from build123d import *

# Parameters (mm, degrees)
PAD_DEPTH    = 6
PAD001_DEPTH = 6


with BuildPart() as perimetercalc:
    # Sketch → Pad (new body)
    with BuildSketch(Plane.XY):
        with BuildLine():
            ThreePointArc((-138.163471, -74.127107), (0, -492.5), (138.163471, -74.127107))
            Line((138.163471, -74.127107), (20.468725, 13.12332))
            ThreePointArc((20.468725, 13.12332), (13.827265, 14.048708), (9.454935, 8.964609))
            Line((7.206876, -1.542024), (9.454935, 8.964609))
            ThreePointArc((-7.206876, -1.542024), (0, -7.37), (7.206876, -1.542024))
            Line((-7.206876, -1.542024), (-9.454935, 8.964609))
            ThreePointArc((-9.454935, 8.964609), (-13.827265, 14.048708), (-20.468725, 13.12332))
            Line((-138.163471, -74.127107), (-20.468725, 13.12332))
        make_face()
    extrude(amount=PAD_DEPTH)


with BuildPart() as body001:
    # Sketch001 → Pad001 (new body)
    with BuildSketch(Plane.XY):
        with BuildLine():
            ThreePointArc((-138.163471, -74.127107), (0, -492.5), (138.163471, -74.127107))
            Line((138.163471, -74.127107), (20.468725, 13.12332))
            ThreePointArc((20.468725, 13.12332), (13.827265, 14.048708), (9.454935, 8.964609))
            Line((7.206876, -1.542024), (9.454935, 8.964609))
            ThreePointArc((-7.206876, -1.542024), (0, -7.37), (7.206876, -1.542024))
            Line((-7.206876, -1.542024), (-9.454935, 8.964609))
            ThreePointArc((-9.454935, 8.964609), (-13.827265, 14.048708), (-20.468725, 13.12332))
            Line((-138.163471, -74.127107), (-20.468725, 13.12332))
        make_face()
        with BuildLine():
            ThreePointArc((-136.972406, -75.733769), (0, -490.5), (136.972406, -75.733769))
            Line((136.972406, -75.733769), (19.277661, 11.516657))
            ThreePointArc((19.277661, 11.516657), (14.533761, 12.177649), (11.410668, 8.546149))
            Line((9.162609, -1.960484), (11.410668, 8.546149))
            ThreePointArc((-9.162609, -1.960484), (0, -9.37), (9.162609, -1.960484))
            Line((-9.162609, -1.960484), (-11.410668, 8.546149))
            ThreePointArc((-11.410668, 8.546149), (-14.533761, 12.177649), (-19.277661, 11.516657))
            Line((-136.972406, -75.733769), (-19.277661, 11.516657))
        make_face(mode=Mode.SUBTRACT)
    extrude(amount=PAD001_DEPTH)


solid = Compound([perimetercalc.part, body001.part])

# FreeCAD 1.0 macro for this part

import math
import FreeCAD as App
import Part
import Sketcher

V = App.Vector
Q = App.Units.Quantity

doc = App.newDocument("Part")
params = doc.addObject("Spreadsheet::Sheet", "Params")
for row, (alias, value) in enumerate([
    ("sketch1_radius", "232 mm"),
    ("sketch1_radius2", "7 mm"),
    ("sketch1_radius3", "7.37 mm"),
    ("pad1_length", "6 mm"),
    ("sketch2_radius", "232 mm"),
    ("sketch2_radius2", "7 mm"),
    ("sketch2_radius3", "230 mm"),
    ("sketch2_radius4", "7.37 mm"),
    ("pad2_length", "6 mm"),
], start=1):
    params.set(f"A{row}", alias)
    params.set(f"B{row}", "=" + value)
    params.setAlias(f"B{row}", alias)

body = doc.addObject("PartDesign::Body", "Body")

sketch1 = doc.addObject("Sketcher::SketchObject", "Sketch")
body.addObject(sketch1)
sketch1.AttachmentSupport = (doc.XY_Plane, [""])
sketch1.MapMode = "FlatFace"
sketch1.addGeometry([
    Part.ArcOfCircle(Part.Circle(V(0, -260.5, 0), V(0, 0, 1), 232), math.radians(126.550581), math.radians(413.449419)),
    Part.LineSegment(V(138.163471, -74.127107, 0), V(20.468725, 13.12332, 0)),
    Part.ArcOfCircle(Part.Circle(V(16.3, 7.5, 0), V(0, 0, 1), 7), math.radians(53.449422), math.radians(167.922776)),
    Part.LineSegment(V(9.454935, 8.964609, 0), V(7.206876, -1.542024, 0)),
    Part.ArcOfCircle(Part.Circle(V(0, 0, 0), V(0, 0, 1), 7.37), math.radians(-167.922777), math.radians(-12.077223)),
    Part.LineSegment(V(-7.206876, -1.542024, 0), V(-9.454935, 8.964609, 0)),
    Part.ArcOfCircle(Part.Circle(V(-16.3, 7.5, 0), V(0, 0, 1), 7), math.radians(12.077224), math.radians(126.550578)),
    Part.LineSegment(V(-20.468725, 13.12332, 0), V(-138.163471, -74.127107, 0)),
], False)
sketch1.addConstraint([
    Sketcher.Constraint("Tangent", 0, 2, 1, 1),
    Sketcher.Constraint("Tangent", 1, 2, 2, 1),
    Sketcher.Constraint("Tangent", 2, 2, 3, 1),
    Sketcher.Constraint("Tangent", 3, 2, 4, 2),
    Sketcher.Constraint("Tangent", 4, 1, 5, 1),
    Sketcher.Constraint("Tangent", 5, 2, 6, 1),
    Sketcher.Constraint("Tangent", 6, 2, 7, 1),
    Sketcher.Constraint("Tangent", 7, 2, 0, 1),
    Sketcher.Constraint("Coincident", 4, 3, -1, 1),
    Sketcher.Constraint("Equal", 2, 6),
    Sketcher.Constraint("Symmetric", 2, 3, 6, 3, -2),
    Sketcher.Constraint("PointOnObject", 0, 3, -2),
    Sketcher.Constraint("Radius", 0, Q("232 mm")),
    Sketcher.Constraint("Radius", 2, Q("7 mm")),
    Sketcher.Constraint("Radius", 4, Q("7.37 mm")),
    Sketcher.Constraint("DistanceY", 0, 3, 2, 3, Q("268 mm")),
    Sketcher.Constraint("DistanceY", 0, 3, -1, 1, Q("260.5 mm")),
    Sketcher.Constraint("DistanceX", -1, 1, 2, 3, Q("16.3 mm")),
])
sketch1.setExpression("Constraints[12]", "Params.sketch1_radius")
sketch1.setExpression("Constraints[13]", "Params.sketch1_radius2")
sketch1.setExpression("Constraints[14]", "Params.sketch1_radius3")
pad1 = doc.addObject("PartDesign::Pad", "Pad")
body.addObject(pad1)
pad1.Profile = sketch1
pad1.setExpression("Length", "Params.pad1_length")
body2 = doc.addObject("PartDesign::Body", "Body001")

sketch2 = doc.addObject("Sketcher::SketchObject", "Sketch001")
body2.addObject(sketch2)
sketch2.AttachmentSupport = (doc.getObject("XY_Plane001"), [""])
sketch2.MapMode = "FlatFace"
sketch2.addGeometry([
    Part.ArcOfCircle(Part.Circle(V(0, -260.5, 0), V(0, 0, 1), 232), math.radians(126.550581), math.radians(413.449419)),
    Part.LineSegment(V(138.163471, -74.127107, 0), V(20.468725, 13.12332, 0)),
    Part.ArcOfCircle(Part.Circle(V(16.3, 7.5, 0), V(0, 0, 1), 7), math.radians(53.449422), math.radians(167.922776)),
    Part.LineSegment(V(9.454935, 8.964609, 0), V(7.206876, -1.542024, 0)),
    Part.ArcOfCircle(Part.Circle(V(0, 0, 0), V(0, 0, 1), 7.37), math.radians(-167.922777), math.radians(-12.077223)),
    Part.LineSegment(V(-7.206876, -1.542024, 0), V(-9.454935, 8.964609, 0)),
    Part.ArcOfCircle(Part.Circle(V(-16.3, 7.5, 0), V(0, 0, 1), 7), math.radians(12.077224), math.radians(126.550578)),
    Part.LineSegment(V(-20.468725, 13.12332, 0), V(-138.163471, -74.127107, 0)),
    Part.ArcOfCircle(Part.Circle(V(0, -260.5, 0), V(0, 0, 1), 230), math.radians(126.550581), math.radians(413.449419)),
    Part.LineSegment(V(-136.972406, -75.733769, 0), V(-19.277661, 11.516657, 0)),
    Part.ArcOfCircle(Part.Circle(V(-16.3, 7.500001, 0), V(0, 0, 1), 4.999999), math.radians(12.077213), math.radians(126.550588)),
    Part.LineSegment(V(-11.410668, 8.546149, 0), V(-9.162609, -1.960484, 0)),
    Part.ArcOfCircle(Part.Circle(V(0, 0, 0), V(0, 0, 1), 9.37), math.radians(-167.922774), math.radians(-12.077226)),
    Part.LineSegment(V(9.162609, -1.960484, 0), V(11.410668, 8.546149, 0)),
    Part.ArcOfCircle(Part.Circle(V(16.3, 7.500001, 0), V(0, 0, 1), 4.999999), math.radians(53.449412), math.radians(167.922787)),
    Part.LineSegment(V(19.277661, 11.516657, 0), V(136.972406, -75.733769, 0)),
], False)
sketch2.addConstraint([
    Sketcher.Constraint("Tangent", 0, 2, 1, 1),
    Sketcher.Constraint("Tangent", 1, 2, 2, 1),
    Sketcher.Constraint("Tangent", 2, 2, 3, 1),
    Sketcher.Constraint("Tangent", 3, 2, 4, 2),
    Sketcher.Constraint("Tangent", 4, 1, 5, 1),
    Sketcher.Constraint("Tangent", 5, 2, 6, 1),
    Sketcher.Constraint("Tangent", 6, 2, 7, 1),
    Sketcher.Constraint("Tangent", 7, 2, 0, 1),
    Sketcher.Constraint("Tangent", 8, 1, 9, 1),
    Sketcher.Constraint("Tangent", 9, 2, 10, 2),
    Sketcher.Constraint("Tangent", 10, 1, 11, 1),
    Sketcher.Constraint("Tangent", 11, 2, 12, 1),
    Sketcher.Constraint("Tangent", 12, 2, 13, 1),
    Sketcher.Constraint("Tangent", 13, 2, 14, 2),
    Sketcher.Constraint("Tangent", 14, 1, 15, 1),
    Sketcher.Constraint("Tangent", 15, 2, 8, 2),
    Sketcher.Constraint("Coincident", 4, 3, -1, 1),
    Sketcher.Constraint("Coincident", 12, 3, -1, 1),
    Sketcher.Constraint("Coincident", 8, 3, 0, 3),
    Sketcher.Constraint("Coincident", 10, 3, 6, 3),
    Sketcher.Constraint("Coincident", 14, 3, 2, 3),
    Sketcher.Constraint("Equal", 2, 6),
    Sketcher.Constraint("Equal", 10, 14),
    Sketcher.Constraint("Symmetric", 2, 3, 6, 3, -2),
    Sketcher.Constraint("PointOnObject", 0, 3, -2),
    Sketcher.Constraint("Parallel", 7, 9),
    Sketcher.Constraint("Parallel", 5, 11),
    Sketcher.Constraint("Radius", 0, Q("232 mm")),
    Sketcher.Constraint("Radius", 2, Q("7 mm")),
    Sketcher.Constraint("Radius", 8, Q("230 mm")),
    Sketcher.Constraint("Radius", 4, Q("7.37 mm")),
    Sketcher.Constraint("DistanceY", 0, 3, 2, 3, Q("268 mm")),
    Sketcher.Constraint("DistanceY", 0, 3, -1, 1, Q("260.5 mm")),
    Sketcher.Constraint("DistanceX", -1, 1, 2, 3, Q("16.3 mm")),
])
sketch2.setExpression("Constraints[27]", "Params.sketch2_radius")
sketch2.setExpression("Constraints[28]", "Params.sketch2_radius2")
sketch2.setExpression("Constraints[29]", "Params.sketch2_radius3")
sketch2.setExpression("Constraints[30]", "Params.sketch2_radius4")
pad2 = doc.addObject("PartDesign::Pad", "Pad001")
body2.addObject(pad2)
pad2.Profile = sketch2
pad2.setExpression("Length", "Params.pad2_length")

doc.recompute()
